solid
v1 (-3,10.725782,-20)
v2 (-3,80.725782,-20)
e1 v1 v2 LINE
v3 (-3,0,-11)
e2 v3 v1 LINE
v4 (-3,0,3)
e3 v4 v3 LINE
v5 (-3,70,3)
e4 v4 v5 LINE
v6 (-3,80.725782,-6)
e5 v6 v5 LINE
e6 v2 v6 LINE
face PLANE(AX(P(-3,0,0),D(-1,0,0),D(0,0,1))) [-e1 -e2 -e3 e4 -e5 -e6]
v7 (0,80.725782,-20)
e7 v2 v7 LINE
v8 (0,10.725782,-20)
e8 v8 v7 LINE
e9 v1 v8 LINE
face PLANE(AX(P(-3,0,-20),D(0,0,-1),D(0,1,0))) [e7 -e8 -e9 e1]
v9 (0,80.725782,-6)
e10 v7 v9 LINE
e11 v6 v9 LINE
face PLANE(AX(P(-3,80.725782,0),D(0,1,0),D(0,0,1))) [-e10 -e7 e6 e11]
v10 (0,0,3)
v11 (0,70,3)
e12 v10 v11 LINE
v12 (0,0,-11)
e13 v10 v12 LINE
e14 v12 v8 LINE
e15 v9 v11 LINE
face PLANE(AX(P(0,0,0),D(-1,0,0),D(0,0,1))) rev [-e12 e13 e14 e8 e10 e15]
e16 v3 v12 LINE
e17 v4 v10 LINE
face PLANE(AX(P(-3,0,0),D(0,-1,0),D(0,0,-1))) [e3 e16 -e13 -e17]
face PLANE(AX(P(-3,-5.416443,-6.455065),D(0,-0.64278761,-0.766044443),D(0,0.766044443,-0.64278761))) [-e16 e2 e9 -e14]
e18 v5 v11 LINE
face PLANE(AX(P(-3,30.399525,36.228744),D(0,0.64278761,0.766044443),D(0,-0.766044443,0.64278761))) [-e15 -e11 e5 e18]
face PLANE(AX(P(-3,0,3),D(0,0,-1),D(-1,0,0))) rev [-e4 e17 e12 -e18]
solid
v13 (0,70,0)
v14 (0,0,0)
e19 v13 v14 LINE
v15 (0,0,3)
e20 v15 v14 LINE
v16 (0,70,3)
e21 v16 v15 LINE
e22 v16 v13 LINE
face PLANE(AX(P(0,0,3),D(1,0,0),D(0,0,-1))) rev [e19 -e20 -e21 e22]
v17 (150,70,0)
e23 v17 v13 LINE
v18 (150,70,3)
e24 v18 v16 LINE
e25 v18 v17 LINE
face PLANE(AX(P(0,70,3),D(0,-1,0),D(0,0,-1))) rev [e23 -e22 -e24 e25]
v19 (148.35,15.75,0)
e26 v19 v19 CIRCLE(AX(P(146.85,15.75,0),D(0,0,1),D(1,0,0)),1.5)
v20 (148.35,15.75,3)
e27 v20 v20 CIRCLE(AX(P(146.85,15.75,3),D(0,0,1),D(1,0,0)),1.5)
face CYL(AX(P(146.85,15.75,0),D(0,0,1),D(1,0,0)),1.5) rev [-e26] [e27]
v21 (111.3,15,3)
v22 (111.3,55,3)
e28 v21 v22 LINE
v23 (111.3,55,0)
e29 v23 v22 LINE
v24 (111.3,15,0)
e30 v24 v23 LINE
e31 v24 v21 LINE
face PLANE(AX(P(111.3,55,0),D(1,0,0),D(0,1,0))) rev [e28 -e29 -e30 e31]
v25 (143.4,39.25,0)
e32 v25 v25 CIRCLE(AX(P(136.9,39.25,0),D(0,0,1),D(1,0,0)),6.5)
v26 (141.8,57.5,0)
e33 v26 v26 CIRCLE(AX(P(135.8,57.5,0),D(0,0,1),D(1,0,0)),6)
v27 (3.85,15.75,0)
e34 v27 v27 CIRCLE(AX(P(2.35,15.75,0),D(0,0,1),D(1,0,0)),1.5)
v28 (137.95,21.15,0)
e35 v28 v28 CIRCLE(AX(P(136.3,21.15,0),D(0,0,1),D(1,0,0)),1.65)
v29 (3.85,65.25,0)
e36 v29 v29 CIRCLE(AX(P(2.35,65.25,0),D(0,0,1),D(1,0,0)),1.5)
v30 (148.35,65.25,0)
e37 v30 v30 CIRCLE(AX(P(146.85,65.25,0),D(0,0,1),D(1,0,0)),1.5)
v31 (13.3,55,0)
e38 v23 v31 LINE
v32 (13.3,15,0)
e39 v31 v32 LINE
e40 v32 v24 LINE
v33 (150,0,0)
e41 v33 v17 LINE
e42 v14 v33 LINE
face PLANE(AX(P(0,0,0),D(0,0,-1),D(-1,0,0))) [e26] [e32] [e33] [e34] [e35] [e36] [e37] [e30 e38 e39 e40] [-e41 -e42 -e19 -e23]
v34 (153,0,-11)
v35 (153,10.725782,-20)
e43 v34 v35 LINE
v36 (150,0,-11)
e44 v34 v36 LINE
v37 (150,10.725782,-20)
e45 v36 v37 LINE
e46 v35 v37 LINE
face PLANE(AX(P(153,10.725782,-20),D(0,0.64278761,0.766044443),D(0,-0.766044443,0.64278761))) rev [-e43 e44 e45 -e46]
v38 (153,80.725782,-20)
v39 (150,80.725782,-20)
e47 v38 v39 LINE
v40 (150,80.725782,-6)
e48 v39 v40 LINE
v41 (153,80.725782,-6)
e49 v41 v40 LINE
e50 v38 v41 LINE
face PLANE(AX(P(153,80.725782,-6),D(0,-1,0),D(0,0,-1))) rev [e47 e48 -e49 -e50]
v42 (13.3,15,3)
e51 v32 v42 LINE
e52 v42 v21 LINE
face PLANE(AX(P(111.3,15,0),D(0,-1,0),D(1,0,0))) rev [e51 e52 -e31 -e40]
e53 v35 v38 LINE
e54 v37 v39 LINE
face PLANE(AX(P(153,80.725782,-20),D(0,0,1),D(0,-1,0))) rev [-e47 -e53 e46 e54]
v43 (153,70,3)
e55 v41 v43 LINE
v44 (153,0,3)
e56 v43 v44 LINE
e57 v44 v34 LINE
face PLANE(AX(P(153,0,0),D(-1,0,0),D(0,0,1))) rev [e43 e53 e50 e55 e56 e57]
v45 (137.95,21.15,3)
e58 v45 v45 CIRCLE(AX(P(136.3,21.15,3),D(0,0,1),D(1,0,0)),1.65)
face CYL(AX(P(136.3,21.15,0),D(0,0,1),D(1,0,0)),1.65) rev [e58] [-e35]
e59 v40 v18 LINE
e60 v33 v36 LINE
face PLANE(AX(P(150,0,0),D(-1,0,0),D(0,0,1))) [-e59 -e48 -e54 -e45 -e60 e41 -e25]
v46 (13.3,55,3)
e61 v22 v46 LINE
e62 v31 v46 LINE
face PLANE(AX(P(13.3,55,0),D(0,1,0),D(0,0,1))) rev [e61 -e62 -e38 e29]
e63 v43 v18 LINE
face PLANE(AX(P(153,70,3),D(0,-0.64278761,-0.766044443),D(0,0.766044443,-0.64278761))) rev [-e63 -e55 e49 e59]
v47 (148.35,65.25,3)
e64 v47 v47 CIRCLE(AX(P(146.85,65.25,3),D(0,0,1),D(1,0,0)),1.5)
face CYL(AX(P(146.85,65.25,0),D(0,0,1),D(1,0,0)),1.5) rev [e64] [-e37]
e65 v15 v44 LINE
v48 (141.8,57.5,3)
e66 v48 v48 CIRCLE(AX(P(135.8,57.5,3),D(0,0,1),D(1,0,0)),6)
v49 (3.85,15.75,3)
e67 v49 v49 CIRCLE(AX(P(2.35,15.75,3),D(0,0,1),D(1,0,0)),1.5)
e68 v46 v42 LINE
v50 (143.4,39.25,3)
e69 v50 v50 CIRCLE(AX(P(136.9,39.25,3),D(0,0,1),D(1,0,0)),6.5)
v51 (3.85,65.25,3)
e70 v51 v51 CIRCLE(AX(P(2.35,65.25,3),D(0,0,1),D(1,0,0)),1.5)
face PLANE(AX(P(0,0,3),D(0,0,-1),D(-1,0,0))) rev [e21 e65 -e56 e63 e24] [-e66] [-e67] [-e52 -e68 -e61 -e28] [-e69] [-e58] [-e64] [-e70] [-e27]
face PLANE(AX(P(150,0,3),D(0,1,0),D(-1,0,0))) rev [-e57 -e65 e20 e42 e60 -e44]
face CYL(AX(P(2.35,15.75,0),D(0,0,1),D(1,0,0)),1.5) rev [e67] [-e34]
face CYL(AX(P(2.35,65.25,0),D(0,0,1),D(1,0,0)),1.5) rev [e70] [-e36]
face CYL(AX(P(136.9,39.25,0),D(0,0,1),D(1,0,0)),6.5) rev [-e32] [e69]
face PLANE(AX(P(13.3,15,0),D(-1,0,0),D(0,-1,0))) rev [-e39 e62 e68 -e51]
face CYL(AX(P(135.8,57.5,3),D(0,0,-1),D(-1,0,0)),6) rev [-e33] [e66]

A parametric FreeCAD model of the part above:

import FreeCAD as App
import Part
import Sketcher
Q = App.Units.Quantity

doc = App.newDocument("Part")
params = doc.addObject("Spreadsheet::Sheet", "Params")
for row, (alias, value) in enumerate([
    ("sketch1_diameter", "12 mm"),
    ("sketch1_width", "150 mm"),
    ("sketch1_height", "70 mm"),
    ("pad1_length", "3 mm"),
    ("sketch2_width", "98 mm"),
    ("sketch2_height", "40 mm"),
    ("pocket1_length", "3 mm"),
    ("sketch3_diameter", "13 mm"),
    ("sketch4_diameter", "3.3 mm"),
    ("pocket3_length", "3 mm"),
    ("sketch5_diameter", "3 mm"),
    ("pocket4_length", "3 mm"),
    ("sketch6_width", "70 mm"),
    ("sketch6_height", "14 mm"),
    ("pad2_length", "3 mm"),
    ("sketch7_width", "70 mm"),
    ("sketch7_height", "14 mm"),
    ("pad3_length", "3 mm"),
], start=1):
    params.set(f"A{row}", alias)
    params.set(f"B{row}", "=" + value)
    params.setAlias(f"B{row}", alias)

body = doc.addObject("PartDesign::Body", "Body")

# Sketch on XY plane
sketch1 = body.newObject("Sketcher::SketchObject", "Sketch")
sketch1.AttachmentSupport = (doc.getObject("XY_Plane"), [""])
sketch1.MapMode = "FlatFace"
sketch1.addGeometry(Part.LineSegment(App.Vector(0, 70, 0), App.Vector(0, 0, 0)), False)
sketch1.addGeometry(Part.LineSegment(App.Vector(0, 0, 0), App.Vector(150, 0, 0)), False)
sketch1.addGeometry(Part.LineSegment(App.Vector(150, 0, 0), App.Vector(150, 70, 0)), False)
sketch1.addGeometry(Part.LineSegment(App.Vector(150, 70, 0), App.Vector(0, 70, 0)), False)
sketch1.addGeometry(Part.Circle(App.Vector(135.8, 57.5, 0), App.Vector(0, 0, 1), 6), False)
sketch1.addConstraint(Sketcher.Constraint("Coincident", 0, 2, 1, 1))
sketch1.addConstraint(Sketcher.Constraint("Coincident", 1, 2, 2, 1))
sketch1.addConstraint(Sketcher.Constraint("Coincident", 2, 2, 3, 1))
sketch1.addConstraint(Sketcher.Constraint("Coincident", 3, 2, 0, 1))
sketch1.addConstraint(Sketcher.Constraint("Vertical", 0))
sketch1.addConstraint(Sketcher.Constraint("Horizontal", 1))
sketch1.addConstraint(Sketcher.Constraint("Vertical", 2))
sketch1.addConstraint(Sketcher.Constraint("Horizontal", 3))
sketch1.addConstraint(Sketcher.Constraint("Coincident", 0, 2, -1, 1))
sketch1.addConstraint(Sketcher.Constraint("Diameter", 4, 12.0))
sketch1.addConstraint(Sketcher.Constraint("DistanceX", 1, 1, 1, 2, 150.0))
sketch1.addConstraint(Sketcher.Constraint("DistanceY", 0, 2, 0, 1, 70.0))
sketch1.addConstraint(Sketcher.Constraint("DistanceX", -1, 1, 4, 3, 135.8))
sketch1.addConstraint(Sketcher.Constraint("DistanceY", -1, 1, 4, 3, 57.5))
sketch1.setExpression("Constraints[9]", "Params.sketch1_diameter")
sketch1.setExpression("Constraints[10]", "Params.sketch1_width")
sketch1.setExpression("Constraints[11]", "Params.sketch1_height")
pad1 = body.newObject("PartDesign::Pad", "Pad")
pad1.Profile = sketch1
pad1.setExpression("Length", "Params.pad1_length")

# Sketch on XY plane
sketch2 = body.newObject("Sketcher::SketchObject", "Sketch001")
sketch2.AttachmentSupport = (doc.getObject("XY_Plane"), [""])
sketch2.MapMode = "FlatFace"
sketch2.AttachmentOffset = App.Placement(App.Vector(0, 0, 3), App.Rotation())
sketch2.addGeometry(Part.LineSegment(App.Vector(13.3, 55, 0), App.Vector(13.3, 15, 0)), False)
sketch2.addGeometry(Part.LineSegment(App.Vector(13.3, 15, 0), App.Vector(111.3, 15, 0)), False)
sketch2.addGeometry(Part.LineSegment(App.Vector(111.3, 15, 0), App.Vector(111.3, 55, 0)), False)
sketch2.addGeometry(Part.LineSegment(App.Vector(111.3, 55, 0), App.Vector(13.3, 55, 0)), False)
sketch2.addConstraint(Sketcher.Constraint("Coincident", 0, 2, 1, 1))
sketch2.addConstraint(Sketcher.Constraint("Coincident", 1, 2, 2, 1))
sketch2.addConstraint(Sketcher.Constraint("Coincident", 2, 2, 3, 1))
sketch2.addConstraint(Sketcher.Constraint("Coincident", 3, 2, 0, 1))
sketch2.addConstraint(Sketcher.Constraint("Vertical", 0))
sketch2.addConstraint(Sketcher.Constraint("Horizontal", 1))
sketch2.addConstraint(Sketcher.Constraint("Vertical", 2))
sketch2.addConstraint(Sketcher.Constraint("Horizontal", 3))
sketch2.addConstraint(Sketcher.Constraint("DistanceX", 1, 1, 1, 2, 98.0))
sketch2.addConstraint(Sketcher.Constraint("DistanceY", 0, 2, 0, 1, 40.0))
sketch2.addConstraint(Sketcher.Constraint("DistanceY", -1, 1, 0, 2, 15.0))
sketch2.addConstraint(Sketcher.Constraint("DistanceX", -1, 1, 0, 2, 13.3))
sketch2.setExpression("Constraints[8]", "Params.sketch2_width")
sketch2.setExpression("Constraints[9]", "Params.sketch2_height")
pocket1 = body.newObject("PartDesign::Pocket", "Pocket")
pocket1.Profile = sketch2
pocket1.setExpression("Length", "Params.pocket1_length")

# Sketch on XY plane
sketch3 = body.newObject("Sketcher::SketchObject", "Sketch002")
sketch3.AttachmentSupport = (doc.getObject("XY_Plane"), [""])
sketch3.MapMode = "FlatFace"
sketch3.AttachmentOffset = App.Placement(App.Vector(0, 0, 3), App.Rotation())
sketch3.addGeometry(Part.Circle(App.Vector(136.9, 39.25, 0), App.Vector(0, 0, 1), 6.5), False)
sketch3.addConstraint(Sketcher.Constraint("Diameter", 0, 13.0))
sketch3.addConstraint(Sketcher.Constraint("DistanceX", -1, 1, 0, 3, 136.9))
sketch3.addConstraint(Sketcher.Constraint("DistanceY", -1, 1, 0, 3, 39.25))
sketch3.setExpression("Constraints[0]", "Params.sketch3_diameter")
pocket2 = body.newObject("PartDesign::Pocket", "Pocket001")
pocket2.Profile = sketch3
pocket2.Type = "ThroughAll"

# Sketch on XY plane
sketch4 = body.newObject("Sketcher::SketchObject", "Sketch003")
sketch4.AttachmentSupport = (doc.getObject("XY_Plane"), [""])
sketch4.MapMode = "FlatFace"
sketch4.AttachmentOffset = App.Placement(App.Vector(0, 0, 3), App.Rotation())
sketch4.addGeometry(Part.Circle(App.Vector(136.3, 21.15, 0), App.Vector(0, 0, 1), 1.65), False)
sketch4.addConstraint(Sketcher.Constraint("Diameter", 0, 3.3))
sketch4.addConstraint(Sketcher.Constraint("DistanceX", -1, 1, 0, 3, 136.3))
sketch4.addConstraint(Sketcher.Constraint("DistanceY", -1, 1, 0, 3, 21.15))
sketch4.setExpression("Constraints[0]", "Params.sketch4_diameter")
pocket3 = body.newObject("PartDesign::Pocket", "Pocket002")
pocket3.Profile = sketch4
pocket3.setExpression("Length", "Params.pocket3_length")

# Sketch on XY plane
sketch5 = body.newObject("Sketcher::SketchObject", "Sketch004")
sketch5.AttachmentSupport = (doc.getObject("XY_Plane"), [""])
sketch5.MapMode = "FlatFace"
sketch5.AttachmentOffset = App.Placement(App.Vector(0, 0, 3), App.Rotation())
sketch5.addGeometry(Part.Circle(App.Vector(146.85, 65.25, 0), App.Vector(0, 0, 1), 1.5), False)
sketch5.addGeometry(Part.Circle(App.Vector(146.85, 15.75, 0), App.Vector(0, 0, 1), 1.5), False)
sketch5.addGeometry(Part.Circle(App.Vector(2.35, 15.75, 0), App.Vector(0, 0, 1), 1.5), False)
sketch5.addGeometry(Part.Circle(App.Vector(2.35, 65.25, 0), App.Vector(0, 0, 1), 1.5), False)
sketch5.addConstraint(Sketcher.Constraint("Equal", 0, 1))
sketch5.addConstraint(Sketcher.Constraint("Equal", 1, 2))
sketch5.addConstraint(Sketcher.Constraint("Equal", 2, 3))
sketch5.addConstraint(Sketcher.Constraint("Horizontal", 1, 3, 2, 3))
sketch5.addConstraint(Sketcher.Constraint("Horizontal", 0, 3, 3, 3))
sketch5.addConstraint(Sketcher.Constraint("Vertical", 0, 3, 1, 3))
sketch5.addConstraint(Sketcher.Constraint("Vertical", 2, 3, 3, 3))
sketch5.addConstraint(Sketcher.Constraint("Diameter", 0, 3.0))
sketch5.addConstraint(Sketcher.Constraint("DistanceY", 1, 3, 0, 3, 49.5))
sketch5.addConstraint(Sketcher.Constraint("DistanceX", 2, 3, 1, 3, 144.5))
sketch5.addConstraint(Sketcher.Constraint("DistanceX", -1, 1, 0, 3, 146.85))
sketch5.addConstraint(Sketcher.Constraint("DistanceY", -1, 1, 0, 3, 65.25))
sketch5.setExpression("Constraints[7]", "Params.sketch5_diameter")
pocket4 = body.newObject("PartDesign::Pocket", "Pocket003")
pocket4.Profile = sketch5
pocket4.setExpression("Length", "Params.pocket4_length")

# Sketch on YZ plane
sketch6 = body.newObject("Sketcher::SketchObject", "Sketch005")
sketch6.AttachmentSupport = (doc.getObject("YZ_Plane"), [""])
sketch6.MapMode = "FlatFace"
sketch6.AttachmentOffset = App.Placement(App.Vector(0, 0, 150), App.Rotation())
sketch6.addGeometry(Part.LineSegment(App.Vector(80.725782, -6, 0), App.Vector(70, 3, 0)), False)
sketch6.addGeometry(Part.LineSegment(App.Vector(70, 3, 0), App.Vector(0, 3, 0)), False)
sketch6.addGeometry(Part.LineSegment(App.Vector(0, 3, 0), App.Vector(0, -11, 0)), False)
sketch6.addGeometry(Part.LineSegment(App.Vector(0, -11, 0), App.Vector(10.725782, -20, 0)), False)
sketch6.addGeometry(Part.LineSegment(App.Vector(10.725782, -20, 0), App.Vector(80.725782, -20, 0)), False)
sketch6.addGeometry(Part.LineSegment(App.Vector(80.725782, -20, 0), App.Vector(80.725782, -6, 0)), False)
sketch6.addConstraint(Sketcher.Constraint("Coincident", 0, 2, 1, 1))
sketch6.addConstraint(Sketcher.Constraint("Coincident", 1, 2, 2, 1))
sketch6.addConstraint(Sketcher.Constraint("Coincident", 2, 2, 3, 1))
sketch6.addConstraint(Sketcher.Constraint("Coincident", 3, 2, 4, 1))
sketch6.addConstraint(Sketcher.Constraint("Coincident", 4, 2, 5, 1))
sketch6.addConstraint(Sketcher.Constraint("Coincident", 5, 2, 0, 1))
sketch6.addConstraint(Sketcher.Constraint("Horizontal", 1))
sketch6.addConstraint(Sketcher.Constraint("Vertical", 2))
sketch6.addConstraint(Sketcher.Constraint("Horizontal", 4))
sketch6.addConstraint(Sketcher.Constraint("Vertical", 5))
sketch6.addConstraint(Sketcher.Constraint("PointOnObject", 1, 2, -2))
sketch6.addConstraint(Sketcher.Constraint("Parallel", 0, 3))
sketch6.addConstraint(Sketcher.Constraint("Equal", 1, 4))
sketch6.addConstraint(Sketcher.Constraint("DistanceX", 1, 2, 1, 1, 70.0))
sketch6.addConstraint(Sketcher.Constraint("DistanceY", 2, 2, 2, 1, 14.0))
sketch6.addConstraint(Sketcher.Constraint("Angle", 0, Q("140 deg")))
sketch6.addConstraint(Sketcher.Constraint("DistanceY", -1, 1, 0, 2, 3.0))
sketch6.addConstraint(Sketcher.Constraint("DistanceY", 3, 2, -1, 1, 20.0))
sketch6.setExpression("Constraints[13]", "Params.sketch6_width")
sketch6.setExpression("Constraints[14]", "Params.sketch6_height")
pad2 = body.newObject("PartDesign::Pad", "Pad001")
pad2.Profile = sketch6
pad2.setExpression("Length", "Params.pad2_length")
body2 = doc.addObject("PartDesign::Body", "Body001")

# Sketch on YZ plane
sketch7 = body2.newObject("Sketcher::SketchObject", "Sketch006")
sketch7.AttachmentSupport = (doc.getObject("YZ_Plane001"), [""])
sketch7.MapMode = "FlatFace"
sketch7.addGeometry(Part.LineSegment(App.Vector(80.725782, -6, 0), App.Vector(80.725782, -20, 0)), False)
sketch7.addGeometry(Part.LineSegment(App.Vector(80.725782, -20, 0), App.Vector(10.725782, -20, 0)), False)
sketch7.addGeometry(Part.LineSegment(App.Vector(10.725782, -20, 0), App.Vector(0, -11, 0)), False)
sketch7.addGeometry(Part.LineSegment(App.Vector(0, -11, 0), App.Vector(0, 3, 0)), False)
sketch7.addGeometry(Part.LineSegment(App.Vector(0, 3, 0), App.Vector(70, 3, 0)), False)
sketch7.addGeometry(Part.LineSegment(App.Vector(70, 3, 0), App.Vector(80.725782, -6, 0)), False)
sketch7.addConstraint(Sketcher.Constraint("Coincident", 0, 2, 1, 1))
sketch7.addConstraint(Sketcher.Constraint("Coincident", 1, 2, 2, 1))
sketch7.addConstraint(Sketcher.Constraint("Coincident", 2, 2, 3, 1))
sketch7.addConstraint(Sketcher.Constraint("Coincident", 3, 2, 4, 1))
sketch7.addConstraint(Sketcher.Constraint("Coincident", 4, 2, 5, 1))
sketch7.addConstraint(Sketcher.Constraint("Coincident", 5, 2, 0, 1))
sketch7.addConstraint(Sketcher.Constraint("Vertical", 0))
sketch7.addConstraint(Sketcher.Constraint("Horizontal", 1))
sketch7.addConstraint(Sketcher.Constraint("Vertical", 3))
sketch7.addConstraint(Sketcher.Constraint("Horizontal", 4))
sketch7.addConstraint(Sketcher.Constraint("PointOnObject", 2, 2, -2))
sketch7.addConstraint(Sketcher.Constraint("Parallel", 2, 5))
sketch7.addConstraint(Sketcher.Constraint("Equal", 1, 4))
sketch7.addConstraint(Sketcher.Constraint("DistanceX", 1, 2, 1, 1, 70.0))
sketch7.addConstraint(Sketcher.Constraint("DistanceY", 0, 2, 0, 1, 14.0))
sketch7.addConstraint(Sketcher.Constraint("Angle", 2, Q("140 deg")))
sketch7.addConstraint(Sketcher.Constraint("DistanceY", 0, 2, -1, 1, 20.0))
sketch7.addConstraint(Sketcher.Constraint("DistanceY", 2, 2, -1, 1, 11.0))
sketch7.setExpression("Constraints[13]", "Params.sketch7_width")
sketch7.setExpression("Constraints[14]", "Params.sketch7_height")
pad3 = body2.newObject("PartDesign::Pad", "Pad002")
pad3.Profile = sketch7
pad3.setExpression("Length", "Params.pad3_length")
pad3.Reversed = True

doc.recompute()
